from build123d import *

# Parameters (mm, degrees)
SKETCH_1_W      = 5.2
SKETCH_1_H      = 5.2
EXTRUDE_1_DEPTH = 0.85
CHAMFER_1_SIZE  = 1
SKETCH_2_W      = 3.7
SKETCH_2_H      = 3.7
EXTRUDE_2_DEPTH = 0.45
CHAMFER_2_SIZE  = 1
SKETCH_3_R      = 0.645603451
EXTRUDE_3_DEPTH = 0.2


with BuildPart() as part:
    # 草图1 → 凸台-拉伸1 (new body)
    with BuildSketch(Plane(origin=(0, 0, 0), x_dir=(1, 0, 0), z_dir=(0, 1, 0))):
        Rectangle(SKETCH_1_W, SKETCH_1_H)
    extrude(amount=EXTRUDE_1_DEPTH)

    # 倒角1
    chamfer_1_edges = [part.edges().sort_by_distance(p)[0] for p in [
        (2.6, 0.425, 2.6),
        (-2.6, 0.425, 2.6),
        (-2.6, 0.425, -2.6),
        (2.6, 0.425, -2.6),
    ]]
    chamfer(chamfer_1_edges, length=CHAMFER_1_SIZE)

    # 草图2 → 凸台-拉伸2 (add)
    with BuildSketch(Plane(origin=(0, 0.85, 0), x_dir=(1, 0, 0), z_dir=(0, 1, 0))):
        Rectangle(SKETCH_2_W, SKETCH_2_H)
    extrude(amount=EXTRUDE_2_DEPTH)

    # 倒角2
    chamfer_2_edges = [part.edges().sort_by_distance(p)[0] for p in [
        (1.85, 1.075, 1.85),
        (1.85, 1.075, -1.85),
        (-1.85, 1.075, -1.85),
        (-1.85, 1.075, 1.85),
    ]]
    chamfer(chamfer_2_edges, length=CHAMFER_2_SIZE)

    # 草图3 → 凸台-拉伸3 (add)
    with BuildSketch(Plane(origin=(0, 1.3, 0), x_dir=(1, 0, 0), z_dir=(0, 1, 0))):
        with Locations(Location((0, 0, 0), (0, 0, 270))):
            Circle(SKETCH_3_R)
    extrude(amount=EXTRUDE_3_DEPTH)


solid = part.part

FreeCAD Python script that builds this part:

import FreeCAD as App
import Part
import Sketcher
from FreeCAD import Vector
Q = App.Units.Quantity


def edges_at(feature, points):
    """Names of the edges that pass closest to the given points."""
    edges = feature.Shape.Edges
    near = lambda p: min(range(len(edges)), key=lambda i: edges[i].distToShape(Part.Vertex(*p))[0])
    return sorted({f"Edge{near(p) + 1}" for p in points})

doc = App.newDocument("Part")
body = doc.addObject("PartDesign::Body", "Body")

# Sketch on XZ plane
sketch1 = body.newObject("Sketcher::SketchObject", "Sketch")
sketch1.AttachmentSupport = (doc.getObject("XZ_Plane"), [""])
sketch1.MapMode = "FlatFace"
sketch1.addGeometry(Part.LineSegment(Vector(-2.6, -2.6, 0), Vector(-2.6, 2.6, 0)), False)
sketch1.addGeometry(Part.LineSegment(Vector(-2.6, 2.6, 0), Vector(2.6, 2.6, 0)), False)
sketch1.addGeometry(Part.LineSegment(Vector(2.6, 2.6, 0), Vector(2.6, -2.6, 0)), False)
sketch1.addGeometry(Part.LineSegment(Vector(2.6, -2.6, 0), Vector(-2.6, -2.6, 0)), False)
sketch1.addConstraint(Sketcher.Constraint("Coincident", 0, 2, 1, 1))
sketch1.addConstraint(Sketcher.Constraint("Coincident", 1, 2, 2, 1))
sketch1.addConstraint(Sketcher.Constraint("Coincident", 2, 2, 3, 1))
sketch1.addConstraint(Sketcher.Constraint("Coincident", 3, 2, 0, 1))
sketch1.addConstraint(Sketcher.Constraint("Vertical", 0))
sketch1.addConstraint(Sketcher.Constraint("Horizontal", 1))
sketch1.addConstraint(Sketcher.Constraint("Vertical", 2))
sketch1.addConstraint(Sketcher.Constraint("Horizontal", 3))
sketch1.addConstraint(Sketcher.Constraint("Symmetric", 0, 2, 2, 2, -1, 1))
sketch1.addConstraint(Sketcher.Constraint("Equal", 3, 0))
sketch1.addConstraint(Sketcher.Constraint("DistanceX", 1, 1, 1, 2, Q("5.2 mm")))
pad1 = body.newObject("PartDesign::Pad", "Pad")
pad1.Profile = sketch1
pad1.Length = 0.85
pad1.Reversed = True
doc.recompute()

chamfer = body.newObject("PartDesign::Chamfer", "Chamfer")
chamfer.Base = (pad1, edges_at(pad1, [
    (2.6, 0.425, 2.6),
    (-2.6, 0.425, 2.6),
    (-2.6, 0.425, -2.6),
    (2.6, 0.425, -2.6),
]))
chamfer.Size = 1

# Sketch on XZ plane
sketch2 = body.newObject("Sketcher::SketchObject", "Sketch001")
sketch2.AttachmentSupport = (doc.getObject("XZ_Plane"), [""])
sketch2.MapMode = "FlatFace"
sketch2.AttachmentOffset = App.Placement(Vector(0, 0, -0.85), App.Rotation())
sketch2.addGeometry(Part.LineSegment(Vector(-1.85, -1.85, 0), Vector(-1.85, 1.85, 0)), False)
sketch2.addGeometry(Part.LineSegment(Vector(-1.85, 1.85, 0), Vector(1.85, 1.85, 0)), False)
sketch2.addGeometry(Part.LineSegment(Vector(1.85, 1.85, 0), Vector(1.85, -1.85, 0)), False)
sketch2.addGeometry(Part.LineSegment(Vector(1.85, -1.85, 0), Vector(-1.85, -1.85, 0)), False)
sketch2.addConstraint(Sketcher.Constraint("Coincident", 0, 2, 1, 1))
sketch2.addConstraint(Sketcher.Constraint("Coincident", 1, 2, 2, 1))
sketch2.addConstraint(Sketcher.Constraint("Coincident", 2, 2, 3, 1))
sketch2.addConstraint(Sketcher.Constraint("Coincident", 3, 2, 0, 1))
sketch2.addConstraint(Sketcher.Constraint("Vertical", 0))
sketch2.addConstraint(Sketcher.Constraint("Horizontal", 1))
sketch2.addConstraint(Sketcher.Constraint("Vertical", 2))
sketch2.addConstraint(Sketcher.Constraint("Horizontal", 3))
sketch2.addConstraint(Sketcher.Constraint("Symmetric", 0, 2, 2, 2, -1, 1))
sketch2.addConstraint(Sketcher.Constraint("Equal", 3, 0))
sketch2.addConstraint(Sketcher.Constraint("DistanceX", 1, 1, 1, 2, Q("3.7 mm")))
pad2 = body.newObject("PartDesign::Pad", "Pad001")
pad2.Profile = sketch2
pad2.Length = 0.45
pad2.Reversed = True
doc.recompute()

chamfer2 = body.newObject("PartDesign::Chamfer", "Chamfer001")
chamfer2.Base = (pad2, edges_at(pad2, [
    (1.85, 1.075, 1.85),
    (1.85, 1.075, -1.85),
    (-1.85, 1.075, -1.85),
    (-1.85, 1.075, 1.85),
]))
chamfer2.Size = 1

# Sketch on XZ plane
sketch3 = body.newObject("Sketcher::SketchObject", "Sketch002")
sketch3.AttachmentSupport = (doc.getObject("XZ_Plane"), [""])
sketch3.MapMode = "FlatFace"
sketch3.AttachmentOffset = App.Placement(Vector(0, 0, -1.3), App.Rotation())
sketch3.addGeometry(Part.Circle(Vector(0, 0, 0), Vector(0, 0, 1), 0.645603), False)
sketch3.addConstraint(Sketcher.Constraint("Coincident", 0, 3, -1, 1))
sketch3.addConstraint(Sketcher.Constraint("Diameter", 0, Q("1.291207 mm")))
pad3 = body.newObject("PartDesign::Pad", "Pad002")
pad3.Profile = sketch3
pad3.Length = 0.2
pad3.Reversed = True

doc.recompute()
